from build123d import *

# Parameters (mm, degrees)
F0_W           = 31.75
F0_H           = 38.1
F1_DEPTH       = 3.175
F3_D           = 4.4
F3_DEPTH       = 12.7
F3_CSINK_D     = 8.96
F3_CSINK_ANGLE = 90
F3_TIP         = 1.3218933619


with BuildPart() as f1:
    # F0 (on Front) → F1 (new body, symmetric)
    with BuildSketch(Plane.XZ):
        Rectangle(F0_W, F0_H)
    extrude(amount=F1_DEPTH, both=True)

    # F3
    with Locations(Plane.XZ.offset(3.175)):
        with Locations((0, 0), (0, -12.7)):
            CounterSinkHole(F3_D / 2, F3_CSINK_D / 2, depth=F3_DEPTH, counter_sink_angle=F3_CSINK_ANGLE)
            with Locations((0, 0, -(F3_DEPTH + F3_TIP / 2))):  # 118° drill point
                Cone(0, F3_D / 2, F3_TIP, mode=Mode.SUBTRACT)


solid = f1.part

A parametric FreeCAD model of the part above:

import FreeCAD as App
import Part
import Sketcher
Q = App.Units.Quantity

doc = App.newDocument("Part")
body = doc.addObject("PartDesign::Body", "Body")

sketch1 = body.newObject("Sketcher::SketchObject", "Sketch")
sketch1.AttachmentSupport = (doc.getObject("XZ_Plane"), [""])
sketch1.MapMode = "FlatFace"
sketch1.addGeometry(Part.LineSegment(App.Vector(-16, 19, 0), App.Vector(-16, -19, 0)), False)
sketch1.addGeometry(Part.LineSegment(App.Vector(-16, -19, 0), App.Vector(16, -19, 0)), False)
sketch1.addGeometry(Part.LineSegment(App.Vector(16, -19, 0), App.Vector(16, 19, 0)), False)
sketch1.addGeometry(Part.LineSegment(App.Vector(16, 19, 0), App.Vector(-16, 19, 0)), False)
sketch1.addConstraint(Sketcher.Constraint("Coincident", 0, 2, 1, 1))
sketch1.addConstraint(Sketcher.Constraint("Coincident", 1, 2, 2, 1))
sketch1.addConstraint(Sketcher.Constraint("Coincident", 2, 2, 3, 1))
sketch1.addConstraint(Sketcher.Constraint("Coincident", 3, 2, 0, 1))
sketch1.addConstraint(Sketcher.Constraint("Vertical", 0))
sketch1.addConstraint(Sketcher.Constraint("Horizontal", 1))
sketch1.addConstraint(Sketcher.Constraint("Vertical", 2))
sketch1.addConstraint(Sketcher.Constraint("Horizontal", 3))
sketch1.addConstraint(Sketcher.Constraint("Symmetric", 0, 2, 2, 2, -1, 1))
sketch1.addConstraint(Sketcher.Constraint("DistanceY", 0, 2, 0, 1, Q("1.5 in")))
sketch1.addConstraint(Sketcher.Constraint("DistanceX", 1, 1, 1, 2, Q("1.25 in")))
pad1 = body.newObject("PartDesign::Pad", "Pad")
pad1.Profile = sketch1
pad1.Length = Q("0.25 in")
pad1.Midplane = True

sketch2 = body.newObject("Sketcher::SketchObject", "Sketch001")
sketch2.AttachmentSupport = (doc.getObject("XZ_Plane"), [""])
sketch2.MapMode = "FlatFace"
sketch2.AttachmentOffset = App.Placement(App.Vector(0, 0, 0.125 * 25.4), App.Rotation())
sketch2.addGeometry(Part.Circle(App.Vector(0, 0, 0), App.Vector(0, 0, 1), 2.2), False)
sketch2.addGeometry(Part.Circle(App.Vector(0, -12.7, 0), App.Vector(0, 0, 1), 2.2), False)
sketch2.addConstraint(Sketcher.Constraint("Coincident", 0, 3, -1, 1))
sketch2.addConstraint(Sketcher.Constraint("Equal", 0, 1))
sketch2.addConstraint(Sketcher.Constraint("PointOnObject", 1, 3, -2))
sketch2.addConstraint(Sketcher.Constraint("DistanceY", 1, 3, -1, 1, Q("0.5 in")))
sketch2.addConstraint(Sketcher.Constraint("Diameter", 0, Q("4.4 mm")))
doc.recompute()
hole = body.newObject("PartDesign::Hole", "Hole")
hole.Profile = sketch2
hole.ThreadType = "None"
hole.Diameter = 4.4
hole.DepthType = "Dimension"
hole.Depth = Q("0.5 in")
hole.DrillPoint = "Angled"
hole.DrillPointAngle = 118
hole.HoleCutType = "Countersink"
hole.HoleCutDiameter = 8.96
hole.HoleCutCountersinkAngle = 90

doc.recompute()
